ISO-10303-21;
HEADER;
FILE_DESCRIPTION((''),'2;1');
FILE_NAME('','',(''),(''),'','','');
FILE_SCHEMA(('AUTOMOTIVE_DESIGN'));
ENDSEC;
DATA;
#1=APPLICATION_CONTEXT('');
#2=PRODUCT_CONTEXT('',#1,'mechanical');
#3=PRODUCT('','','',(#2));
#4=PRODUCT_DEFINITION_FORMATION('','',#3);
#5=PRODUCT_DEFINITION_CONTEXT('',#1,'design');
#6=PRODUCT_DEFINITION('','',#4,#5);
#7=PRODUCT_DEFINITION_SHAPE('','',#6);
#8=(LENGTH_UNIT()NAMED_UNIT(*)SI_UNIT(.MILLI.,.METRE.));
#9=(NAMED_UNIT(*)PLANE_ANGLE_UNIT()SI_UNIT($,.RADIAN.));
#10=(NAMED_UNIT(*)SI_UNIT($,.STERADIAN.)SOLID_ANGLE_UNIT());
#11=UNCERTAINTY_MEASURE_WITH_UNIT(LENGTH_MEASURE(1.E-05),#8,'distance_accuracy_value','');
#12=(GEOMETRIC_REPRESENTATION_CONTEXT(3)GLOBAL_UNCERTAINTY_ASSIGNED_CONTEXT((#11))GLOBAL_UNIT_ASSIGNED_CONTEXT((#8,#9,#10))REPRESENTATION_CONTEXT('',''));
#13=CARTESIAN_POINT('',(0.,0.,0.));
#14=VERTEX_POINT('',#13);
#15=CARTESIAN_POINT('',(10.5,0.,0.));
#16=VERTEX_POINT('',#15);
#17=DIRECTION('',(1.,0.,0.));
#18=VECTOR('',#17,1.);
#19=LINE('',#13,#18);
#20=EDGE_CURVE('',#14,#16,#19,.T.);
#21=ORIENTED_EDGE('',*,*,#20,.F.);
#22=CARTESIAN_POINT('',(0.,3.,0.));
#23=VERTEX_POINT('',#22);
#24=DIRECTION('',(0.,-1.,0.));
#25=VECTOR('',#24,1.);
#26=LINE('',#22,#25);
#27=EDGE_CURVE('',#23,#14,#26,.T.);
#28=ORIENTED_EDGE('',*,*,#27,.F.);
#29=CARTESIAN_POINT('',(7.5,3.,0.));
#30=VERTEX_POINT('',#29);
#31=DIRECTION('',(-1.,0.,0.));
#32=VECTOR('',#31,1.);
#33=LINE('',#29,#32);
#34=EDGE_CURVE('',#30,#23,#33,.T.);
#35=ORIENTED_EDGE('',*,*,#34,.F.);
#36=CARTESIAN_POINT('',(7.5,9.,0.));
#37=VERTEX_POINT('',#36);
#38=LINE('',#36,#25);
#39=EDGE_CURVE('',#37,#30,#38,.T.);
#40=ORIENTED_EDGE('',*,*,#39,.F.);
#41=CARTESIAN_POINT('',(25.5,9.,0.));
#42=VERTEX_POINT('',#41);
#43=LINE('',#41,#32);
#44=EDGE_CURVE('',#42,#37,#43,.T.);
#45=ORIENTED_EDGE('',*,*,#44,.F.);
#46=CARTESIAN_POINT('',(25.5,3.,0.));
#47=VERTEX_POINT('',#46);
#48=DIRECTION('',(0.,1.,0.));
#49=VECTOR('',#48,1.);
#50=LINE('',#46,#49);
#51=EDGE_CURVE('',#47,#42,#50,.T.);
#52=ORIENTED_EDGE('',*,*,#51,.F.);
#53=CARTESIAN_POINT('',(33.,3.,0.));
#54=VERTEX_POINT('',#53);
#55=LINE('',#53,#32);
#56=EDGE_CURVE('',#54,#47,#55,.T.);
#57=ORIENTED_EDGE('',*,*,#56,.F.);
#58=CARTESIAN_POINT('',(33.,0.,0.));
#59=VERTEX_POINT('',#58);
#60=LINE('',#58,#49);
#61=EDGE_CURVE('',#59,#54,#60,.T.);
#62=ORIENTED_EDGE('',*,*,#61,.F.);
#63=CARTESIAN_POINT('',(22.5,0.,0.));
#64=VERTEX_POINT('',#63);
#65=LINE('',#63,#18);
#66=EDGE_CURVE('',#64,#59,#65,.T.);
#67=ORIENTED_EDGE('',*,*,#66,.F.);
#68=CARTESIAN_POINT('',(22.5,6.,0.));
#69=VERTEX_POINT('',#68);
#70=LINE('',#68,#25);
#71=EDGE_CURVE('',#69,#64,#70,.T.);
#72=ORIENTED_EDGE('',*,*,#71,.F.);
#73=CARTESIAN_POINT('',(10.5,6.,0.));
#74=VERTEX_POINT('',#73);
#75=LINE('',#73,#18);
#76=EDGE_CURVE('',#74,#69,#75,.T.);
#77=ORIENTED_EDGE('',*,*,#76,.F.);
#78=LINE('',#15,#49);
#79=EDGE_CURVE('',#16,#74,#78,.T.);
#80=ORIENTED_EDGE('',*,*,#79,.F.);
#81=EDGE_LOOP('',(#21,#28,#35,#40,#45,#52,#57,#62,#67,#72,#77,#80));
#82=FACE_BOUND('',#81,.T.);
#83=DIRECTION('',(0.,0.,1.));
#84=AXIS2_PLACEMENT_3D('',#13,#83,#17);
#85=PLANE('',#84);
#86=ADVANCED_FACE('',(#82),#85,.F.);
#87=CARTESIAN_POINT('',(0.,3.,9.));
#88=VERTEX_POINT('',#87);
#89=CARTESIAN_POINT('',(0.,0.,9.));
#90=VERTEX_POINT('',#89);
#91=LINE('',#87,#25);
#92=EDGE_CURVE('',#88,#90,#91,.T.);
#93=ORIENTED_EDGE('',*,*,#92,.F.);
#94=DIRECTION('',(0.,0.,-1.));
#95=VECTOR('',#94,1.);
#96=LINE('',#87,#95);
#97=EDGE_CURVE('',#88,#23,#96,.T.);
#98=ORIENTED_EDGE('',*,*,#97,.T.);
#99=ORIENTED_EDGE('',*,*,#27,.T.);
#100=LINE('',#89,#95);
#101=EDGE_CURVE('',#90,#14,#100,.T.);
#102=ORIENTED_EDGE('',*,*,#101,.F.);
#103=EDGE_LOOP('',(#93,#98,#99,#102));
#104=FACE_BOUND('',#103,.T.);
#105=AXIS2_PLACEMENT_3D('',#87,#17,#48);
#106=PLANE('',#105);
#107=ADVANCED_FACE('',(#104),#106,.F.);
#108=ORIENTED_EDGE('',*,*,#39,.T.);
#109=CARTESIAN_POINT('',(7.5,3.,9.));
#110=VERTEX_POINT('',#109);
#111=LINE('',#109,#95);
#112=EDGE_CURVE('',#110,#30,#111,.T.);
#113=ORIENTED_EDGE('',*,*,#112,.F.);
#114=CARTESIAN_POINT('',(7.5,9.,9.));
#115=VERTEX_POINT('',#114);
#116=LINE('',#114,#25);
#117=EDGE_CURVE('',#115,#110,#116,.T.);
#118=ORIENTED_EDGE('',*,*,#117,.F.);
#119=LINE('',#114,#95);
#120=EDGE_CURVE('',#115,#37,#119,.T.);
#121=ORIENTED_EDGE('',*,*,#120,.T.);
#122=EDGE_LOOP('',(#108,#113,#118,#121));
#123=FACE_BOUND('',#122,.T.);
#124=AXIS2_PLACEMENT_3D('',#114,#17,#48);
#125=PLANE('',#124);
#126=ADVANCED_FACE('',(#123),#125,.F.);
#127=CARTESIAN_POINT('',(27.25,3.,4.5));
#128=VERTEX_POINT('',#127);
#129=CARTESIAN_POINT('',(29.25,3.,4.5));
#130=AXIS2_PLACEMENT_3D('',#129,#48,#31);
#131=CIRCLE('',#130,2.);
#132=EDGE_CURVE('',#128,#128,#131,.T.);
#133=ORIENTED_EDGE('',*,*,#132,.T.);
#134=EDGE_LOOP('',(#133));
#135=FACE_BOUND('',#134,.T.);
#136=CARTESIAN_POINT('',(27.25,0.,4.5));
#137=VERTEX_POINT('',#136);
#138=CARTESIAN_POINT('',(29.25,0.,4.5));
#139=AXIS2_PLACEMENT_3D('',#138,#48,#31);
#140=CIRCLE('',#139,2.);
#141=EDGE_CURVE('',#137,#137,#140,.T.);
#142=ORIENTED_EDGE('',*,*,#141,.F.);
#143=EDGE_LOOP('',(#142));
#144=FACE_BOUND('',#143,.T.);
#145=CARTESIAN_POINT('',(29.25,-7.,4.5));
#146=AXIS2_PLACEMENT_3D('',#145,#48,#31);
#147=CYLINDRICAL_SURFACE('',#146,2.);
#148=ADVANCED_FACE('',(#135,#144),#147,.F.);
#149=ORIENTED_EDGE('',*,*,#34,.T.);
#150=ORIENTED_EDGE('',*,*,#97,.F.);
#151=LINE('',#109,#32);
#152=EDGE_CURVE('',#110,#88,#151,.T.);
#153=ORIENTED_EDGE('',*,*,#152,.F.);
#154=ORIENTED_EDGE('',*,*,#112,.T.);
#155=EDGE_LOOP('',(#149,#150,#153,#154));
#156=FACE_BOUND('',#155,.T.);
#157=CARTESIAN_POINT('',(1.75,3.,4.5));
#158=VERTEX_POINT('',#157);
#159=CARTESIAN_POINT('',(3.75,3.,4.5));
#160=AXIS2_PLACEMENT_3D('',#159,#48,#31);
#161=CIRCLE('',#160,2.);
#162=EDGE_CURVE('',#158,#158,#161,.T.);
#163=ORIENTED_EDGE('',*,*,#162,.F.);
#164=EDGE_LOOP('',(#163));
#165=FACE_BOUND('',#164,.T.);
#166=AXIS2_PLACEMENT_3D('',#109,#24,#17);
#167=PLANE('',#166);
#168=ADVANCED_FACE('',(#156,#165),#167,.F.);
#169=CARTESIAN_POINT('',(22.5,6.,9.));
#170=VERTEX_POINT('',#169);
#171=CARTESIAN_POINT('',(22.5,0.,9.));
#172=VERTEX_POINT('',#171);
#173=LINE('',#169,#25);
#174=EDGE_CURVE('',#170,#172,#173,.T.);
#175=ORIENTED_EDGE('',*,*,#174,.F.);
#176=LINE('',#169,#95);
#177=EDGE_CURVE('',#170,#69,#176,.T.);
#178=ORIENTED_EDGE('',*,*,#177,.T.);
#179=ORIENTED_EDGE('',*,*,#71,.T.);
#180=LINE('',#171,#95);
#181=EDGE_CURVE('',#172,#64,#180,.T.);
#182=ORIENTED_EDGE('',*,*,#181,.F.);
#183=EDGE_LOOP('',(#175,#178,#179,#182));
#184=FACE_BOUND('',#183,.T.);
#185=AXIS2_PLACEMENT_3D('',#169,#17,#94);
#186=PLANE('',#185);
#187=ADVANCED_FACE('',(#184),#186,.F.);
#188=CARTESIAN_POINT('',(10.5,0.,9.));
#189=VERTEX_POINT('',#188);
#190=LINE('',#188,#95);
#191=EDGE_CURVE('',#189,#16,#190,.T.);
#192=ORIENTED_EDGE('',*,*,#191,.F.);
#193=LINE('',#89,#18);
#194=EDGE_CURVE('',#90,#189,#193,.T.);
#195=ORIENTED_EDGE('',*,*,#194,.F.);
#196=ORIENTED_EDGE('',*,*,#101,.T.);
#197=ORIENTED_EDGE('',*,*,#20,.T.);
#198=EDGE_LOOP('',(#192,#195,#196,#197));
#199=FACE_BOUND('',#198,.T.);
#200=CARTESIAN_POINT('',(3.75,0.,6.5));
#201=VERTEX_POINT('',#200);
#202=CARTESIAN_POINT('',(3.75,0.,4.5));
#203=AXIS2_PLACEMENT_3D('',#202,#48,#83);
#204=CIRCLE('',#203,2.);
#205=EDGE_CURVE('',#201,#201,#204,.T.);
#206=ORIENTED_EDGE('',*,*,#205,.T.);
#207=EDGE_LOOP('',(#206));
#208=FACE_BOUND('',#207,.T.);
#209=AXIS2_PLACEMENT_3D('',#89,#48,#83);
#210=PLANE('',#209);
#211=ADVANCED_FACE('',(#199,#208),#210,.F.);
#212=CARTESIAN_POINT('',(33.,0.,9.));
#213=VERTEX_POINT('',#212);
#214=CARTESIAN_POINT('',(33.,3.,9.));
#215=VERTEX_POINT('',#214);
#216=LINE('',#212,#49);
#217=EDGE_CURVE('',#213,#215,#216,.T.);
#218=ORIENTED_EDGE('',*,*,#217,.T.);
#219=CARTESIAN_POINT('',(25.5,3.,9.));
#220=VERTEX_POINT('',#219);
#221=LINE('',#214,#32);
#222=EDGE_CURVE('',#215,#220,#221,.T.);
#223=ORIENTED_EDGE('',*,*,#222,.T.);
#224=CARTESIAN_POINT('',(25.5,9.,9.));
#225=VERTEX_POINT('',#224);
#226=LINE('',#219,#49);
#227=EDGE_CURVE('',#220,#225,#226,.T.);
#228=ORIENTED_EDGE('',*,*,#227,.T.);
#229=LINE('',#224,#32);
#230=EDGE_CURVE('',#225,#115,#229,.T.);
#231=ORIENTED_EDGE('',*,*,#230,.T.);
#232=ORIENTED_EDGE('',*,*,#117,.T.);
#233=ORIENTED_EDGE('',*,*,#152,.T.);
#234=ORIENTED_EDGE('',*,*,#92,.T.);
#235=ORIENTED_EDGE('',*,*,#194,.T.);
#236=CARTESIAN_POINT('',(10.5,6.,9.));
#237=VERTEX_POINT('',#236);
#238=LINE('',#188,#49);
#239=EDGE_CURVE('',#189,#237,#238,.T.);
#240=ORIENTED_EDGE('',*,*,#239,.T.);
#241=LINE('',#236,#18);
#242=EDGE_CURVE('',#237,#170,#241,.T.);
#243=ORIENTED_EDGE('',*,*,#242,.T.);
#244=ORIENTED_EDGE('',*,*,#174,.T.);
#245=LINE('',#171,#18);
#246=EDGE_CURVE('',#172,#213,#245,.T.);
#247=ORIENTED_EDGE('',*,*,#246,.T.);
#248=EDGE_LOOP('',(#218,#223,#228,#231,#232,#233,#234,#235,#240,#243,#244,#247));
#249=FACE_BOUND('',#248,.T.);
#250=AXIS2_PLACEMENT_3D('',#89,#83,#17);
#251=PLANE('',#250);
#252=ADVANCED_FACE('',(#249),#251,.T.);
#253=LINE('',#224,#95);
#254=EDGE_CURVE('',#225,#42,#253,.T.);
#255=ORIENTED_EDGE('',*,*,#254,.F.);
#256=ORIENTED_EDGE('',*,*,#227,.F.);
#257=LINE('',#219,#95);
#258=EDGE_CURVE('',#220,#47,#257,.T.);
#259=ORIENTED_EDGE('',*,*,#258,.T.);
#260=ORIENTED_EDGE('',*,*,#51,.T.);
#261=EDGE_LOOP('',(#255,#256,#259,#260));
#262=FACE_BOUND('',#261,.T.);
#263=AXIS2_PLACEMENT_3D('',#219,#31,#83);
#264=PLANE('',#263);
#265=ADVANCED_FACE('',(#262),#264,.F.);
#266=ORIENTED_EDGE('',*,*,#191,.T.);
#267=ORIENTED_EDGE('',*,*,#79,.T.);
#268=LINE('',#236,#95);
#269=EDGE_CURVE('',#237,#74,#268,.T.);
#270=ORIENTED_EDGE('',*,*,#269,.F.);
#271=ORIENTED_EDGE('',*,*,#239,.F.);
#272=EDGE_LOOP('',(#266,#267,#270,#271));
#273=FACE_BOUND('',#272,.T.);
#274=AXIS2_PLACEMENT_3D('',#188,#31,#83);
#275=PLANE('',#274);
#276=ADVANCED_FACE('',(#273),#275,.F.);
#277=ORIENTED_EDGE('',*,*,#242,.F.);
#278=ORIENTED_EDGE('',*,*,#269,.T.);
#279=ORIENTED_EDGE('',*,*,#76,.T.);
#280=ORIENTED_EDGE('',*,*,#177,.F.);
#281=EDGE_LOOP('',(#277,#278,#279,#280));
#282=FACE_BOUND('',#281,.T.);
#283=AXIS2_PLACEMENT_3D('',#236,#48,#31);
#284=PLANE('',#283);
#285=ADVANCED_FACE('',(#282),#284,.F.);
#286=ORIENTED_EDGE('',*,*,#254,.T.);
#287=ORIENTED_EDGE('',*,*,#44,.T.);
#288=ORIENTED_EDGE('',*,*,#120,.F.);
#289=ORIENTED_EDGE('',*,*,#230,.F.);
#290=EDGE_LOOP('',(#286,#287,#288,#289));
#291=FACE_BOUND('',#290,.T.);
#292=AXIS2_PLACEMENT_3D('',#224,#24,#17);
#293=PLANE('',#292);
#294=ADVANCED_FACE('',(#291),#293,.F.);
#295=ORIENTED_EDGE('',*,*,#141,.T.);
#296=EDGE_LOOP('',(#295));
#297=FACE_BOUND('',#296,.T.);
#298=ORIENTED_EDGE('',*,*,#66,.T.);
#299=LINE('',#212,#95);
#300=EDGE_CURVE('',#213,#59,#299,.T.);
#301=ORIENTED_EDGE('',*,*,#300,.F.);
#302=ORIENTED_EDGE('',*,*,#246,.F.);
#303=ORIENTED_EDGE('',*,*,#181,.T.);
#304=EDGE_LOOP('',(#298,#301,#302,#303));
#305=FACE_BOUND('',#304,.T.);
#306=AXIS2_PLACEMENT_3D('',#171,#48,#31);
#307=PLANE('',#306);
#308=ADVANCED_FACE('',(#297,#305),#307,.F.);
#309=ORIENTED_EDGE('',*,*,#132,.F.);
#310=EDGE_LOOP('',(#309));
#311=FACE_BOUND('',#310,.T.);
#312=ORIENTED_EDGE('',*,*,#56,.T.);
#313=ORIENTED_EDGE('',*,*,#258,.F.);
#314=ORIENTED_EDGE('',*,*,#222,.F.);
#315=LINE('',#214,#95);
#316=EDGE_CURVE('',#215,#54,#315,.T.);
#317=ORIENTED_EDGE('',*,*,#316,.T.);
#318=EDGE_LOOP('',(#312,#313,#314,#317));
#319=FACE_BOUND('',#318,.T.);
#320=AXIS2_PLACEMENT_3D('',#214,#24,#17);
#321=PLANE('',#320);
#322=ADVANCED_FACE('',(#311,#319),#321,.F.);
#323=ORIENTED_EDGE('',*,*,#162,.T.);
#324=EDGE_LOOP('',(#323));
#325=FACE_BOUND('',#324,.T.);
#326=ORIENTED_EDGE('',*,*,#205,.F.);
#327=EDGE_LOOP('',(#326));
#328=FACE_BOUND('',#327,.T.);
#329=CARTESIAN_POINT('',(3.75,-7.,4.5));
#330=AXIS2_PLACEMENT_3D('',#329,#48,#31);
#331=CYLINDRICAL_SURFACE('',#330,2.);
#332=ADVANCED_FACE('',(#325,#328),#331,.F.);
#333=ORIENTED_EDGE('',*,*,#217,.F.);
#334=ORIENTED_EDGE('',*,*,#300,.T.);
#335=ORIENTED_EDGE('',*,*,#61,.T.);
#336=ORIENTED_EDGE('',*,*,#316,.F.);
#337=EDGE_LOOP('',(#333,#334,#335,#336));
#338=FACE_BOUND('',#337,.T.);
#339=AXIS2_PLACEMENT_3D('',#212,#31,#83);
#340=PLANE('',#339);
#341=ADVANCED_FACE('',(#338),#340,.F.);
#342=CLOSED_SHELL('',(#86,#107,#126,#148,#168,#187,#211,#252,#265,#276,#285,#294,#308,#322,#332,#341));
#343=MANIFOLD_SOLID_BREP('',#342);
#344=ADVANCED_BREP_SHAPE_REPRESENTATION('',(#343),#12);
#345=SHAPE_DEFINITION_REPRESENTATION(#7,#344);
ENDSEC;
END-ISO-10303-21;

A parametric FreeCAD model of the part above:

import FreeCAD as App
import Part
import Sketcher
Q = App.Units.Quantity


def add_polygon(sketch, points):
    """Adds a closed chain of lines whose ends are joined by coincident constraints."""
    first, n = sketch.GeometryCount, len(points)
    for a, b in zip(points, points[1:] + points[:1]):
        sketch.addGeometry(Part.LineSegment(App.Vector(*a, 0), App.Vector(*b, 0)), False)
    for i in range(n):
        sketch.addConstraint(Sketcher.Constraint("Coincident", first + i, 2, first + (i + 1) % n, 1))

doc = App.newDocument("Part")
body = doc.addObject("PartDesign::Body", "Body")

sketch1 = doc.addObject("Sketcher::SketchObject", "Sketch")
body.addObject(sketch1)
sketch1.AttachmentSupport = (doc.XY_Plane, [""])
sketch1.MapMode = "FlatFace"
add_polygon(sketch1, [(0, 0), (10.5, 0), (10.5, 6), (22.5, 6), (22.5, 0), (33, 0), (33, 3), (25.5, 3), (25.5, 9), (7.5, 9), (7.5, 3), (0, 3)])
sketch1.addConstraint(Sketcher.Constraint("Horizontal", 0))
sketch1.addConstraint(Sketcher.Constraint("Vertical", 1))
sketch1.addConstraint(Sketcher.Constraint("Horizontal", 2))
sketch1.addConstraint(Sketcher.Constraint("Vertical", 3))
sketch1.addConstraint(Sketcher.Constraint("Horizontal", 4))
sketch1.addConstraint(Sketcher.Constraint("Vertical", 5))
sketch1.addConstraint(Sketcher.Constraint("Horizontal", 6))
sketch1.addConstraint(Sketcher.Constraint("Vertical", 7))
sketch1.addConstraint(Sketcher.Constraint("Horizontal", 8))
sketch1.addConstraint(Sketcher.Constraint("Vertical", 9))
sketch1.addConstraint(Sketcher.Constraint("Horizontal", 10))
sketch1.addConstraint(Sketcher.Constraint("Vertical", 11))
sketch1.addConstraint(Sketcher.Constraint("Coincident", 11, 2, -1, 1))
sketch1.addConstraint(Sketcher.Constraint("PointOnObject", 3, 2, -1))
sketch1.addConstraint(Sketcher.Constraint("Horizontal", 6, 2, 9, 2))
sketch1.addConstraint(Sketcher.Constraint("Equal", 0, 4))
sketch1.addConstraint(Sketcher.Constraint("Equal", 6, 10))
sketch1.addConstraint(Sketcher.Constraint("Equal", 3, 7))
sketch1.addConstraint(Sketcher.Constraint("DistanceX", 2, 1, 2, 2, Q("12 mm")))
sketch1.addConstraint(Sketcher.Constraint("DistanceX", 8, 2, 8, 1, Q("18 mm")))
sketch1.addConstraint(Sketcher.Constraint("DistanceY", 1, 1, 1, 2, Q("6 mm")))
sketch1.addConstraint(Sketcher.Constraint("DistanceY", 5, 1, 5, 2, Q("3 mm")))
sketch1.addConstraint(Sketcher.Constraint("DistanceX", 0, 1, 0, 2, Q("10.5 mm")))
pad1 = doc.addObject("PartDesign::Pad", "Pad")
body.addObject(pad1)
pad1.Profile = sketch1
pad1.Length = 9

sketch2 = doc.addObject("Sketcher::SketchObject", "Sketch001")
body.addObject(sketch2)
sketch2.AttachmentSupport = (doc.XZ_Plane, [""])
sketch2.MapMode = "FlatFace"
sketch2.AttachmentOffset = App.Placement(App.Vector(0, 0, -3), App.Rotation())
sketch2.addGeometry(Part.Circle(App.Vector(29.2, 4.5, 0), App.Vector(0, 0, 1), 2), False)
sketch2.addGeometry(Part.Circle(App.Vector(3.8, 4.5, 0), App.Vector(0, 0, 1), 2), False)
sketch2.addConstraint(Sketcher.Constraint("Equal", 0, 1))
sketch2.addConstraint(Sketcher.Constraint("Horizontal", 0, 3, 1, 3))
sketch2.addConstraint(Sketcher.Constraint("Diameter", 0, Q("4 mm")))
sketch2.addConstraint(Sketcher.Constraint("DistanceY", -1, 1, 0, 3, Q("4.5 mm")))
sketch2.addConstraint(Sketcher.Constraint("DistanceX", 1, 3, 0, 3, Q("25.5 mm")))
sketch2.addConstraint(Sketcher.Constraint("DistanceX", -1, 1, 0, 3, Q("29.25 mm")))
pocket1 = doc.addObject("PartDesign::Pocket", "Pocket")
body.addObject(pocket1)
pocket1.Profile = sketch2
pocket1.Length = 10
pocket1.Reversed = True

doc.recompute()
